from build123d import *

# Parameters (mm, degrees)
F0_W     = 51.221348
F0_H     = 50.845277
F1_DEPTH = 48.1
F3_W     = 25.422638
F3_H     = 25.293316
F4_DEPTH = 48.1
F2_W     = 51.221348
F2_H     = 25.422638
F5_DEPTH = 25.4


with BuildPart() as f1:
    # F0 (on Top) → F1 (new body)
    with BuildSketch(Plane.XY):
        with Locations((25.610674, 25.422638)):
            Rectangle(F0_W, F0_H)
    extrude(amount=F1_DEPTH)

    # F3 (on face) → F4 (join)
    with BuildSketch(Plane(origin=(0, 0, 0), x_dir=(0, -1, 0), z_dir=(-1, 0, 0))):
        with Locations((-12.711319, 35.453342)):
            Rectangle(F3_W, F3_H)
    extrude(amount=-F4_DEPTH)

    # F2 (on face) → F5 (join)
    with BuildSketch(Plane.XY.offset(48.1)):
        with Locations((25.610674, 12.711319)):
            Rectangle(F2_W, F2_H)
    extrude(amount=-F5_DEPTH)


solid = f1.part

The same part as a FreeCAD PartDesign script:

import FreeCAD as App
import Part
import Sketcher
Q = App.Units.Quantity


def add_polygon(sketch, points):
    """Adds a closed chain of lines whose ends are joined by coincident constraints."""
    first, n = sketch.GeometryCount, len(points)
    for a, b in zip(points, points[1:] + points[:1]):
        sketch.addGeometry(Part.LineSegment(App.Vector(*a, 0), App.Vector(*b, 0)), False)
    for i in range(n):
        sketch.addConstraint(Sketcher.Constraint("Coincident", first + i, 2, first + (i + 1) % n, 1))

doc = App.newDocument("Part")
body = doc.addObject("PartDesign::Body", "Body")

sketch1 = body.newObject("Sketcher::SketchObject", "Sketch")
sketch1.AttachmentSupport = (doc.getObject("XY_Plane"), [""])
sketch1.MapMode = "FlatFace"
add_polygon(sketch1, [(0, 50.845276), (0, 0), (51.221348, 0), (51.221348, 50.845276)])
sketch1.addConstraint(Sketcher.Constraint("Vertical", 0))
sketch1.addConstraint(Sketcher.Constraint("Horizontal", 1))
sketch1.addConstraint(Sketcher.Constraint("Vertical", 2))
sketch1.addConstraint(Sketcher.Constraint("Horizontal", 3))
sketch1.addConstraint(Sketcher.Constraint("Coincident", 0, 2, -1, 1))
sketch1.addConstraint(Sketcher.Constraint("DistanceX", 1, 1, 1, 2, Q("51.221348 mm")))
sketch1.addConstraint(Sketcher.Constraint("DistanceY", 0, 2, 0, 1, Q("50.845277 mm")))
pad1 = body.newObject("PartDesign::Pad", "Pad")
pad1.Profile = sketch1
pad1.Length = 48.1

sketch2 = body.newObject("Sketcher::SketchObject", "Sketch001")
sketch2.AttachmentSupport = (doc.getObject("YZ_Plane"), [""])
sketch2.MapMode = "FlatFace"
add_polygon(sketch2, [(25.422638, 48.1), (25.422638, 22.806684), (0, 22.806684), (0, 48.1)])
sketch2.addConstraint(Sketcher.Constraint("Vertical", 0))
sketch2.addConstraint(Sketcher.Constraint("Horizontal", 1))
sketch2.addConstraint(Sketcher.Constraint("Vertical", 2))
sketch2.addConstraint(Sketcher.Constraint("Horizontal", 3))
sketch2.addConstraint(Sketcher.Constraint("PointOnObject", 1, 2, -2))
sketch2.addConstraint(Sketcher.Constraint("DistanceY", -1, 1, 2, 2, Q("48.1 mm")))
sketch2.addConstraint(Sketcher.Constraint("DistanceX", 1, 2, 1, 1, Q("25.422638 mm")))
sketch2.addConstraint(Sketcher.Constraint("DistanceY", 0, 2, 0, 1, Q("25.293316 mm")))
pad2 = body.newObject("PartDesign::Pad", "Pad001")
pad2.Profile = sketch2
pad2.Length = 48.1

sketch3 = body.newObject("Sketcher::SketchObject", "Sketch002")
sketch3.AttachmentSupport = (doc.getObject("XY_Plane"), [""])
sketch3.MapMode = "FlatFace"
sketch3.AttachmentOffset = App.Placement(App.Vector(0, 0, 48.1), App.Rotation())
add_polygon(sketch3, [(0, 25.422638), (0, 0), (51.221348, 0), (51.221348, 25.422638)])
sketch3.addConstraint(Sketcher.Constraint("Vertical", 0))
sketch3.addConstraint(Sketcher.Constraint("Horizontal", 1))
sketch3.addConstraint(Sketcher.Constraint("Vertical", 2))
sketch3.addConstraint(Sketcher.Constraint("Horizontal", 3))
sketch3.addConstraint(Sketcher.Constraint("Coincident", 0, 2, -1, 1))
sketch3.addConstraint(Sketcher.Constraint("DistanceX", 1, 1, 1, 2, Q("51.221348 mm")))
sketch3.addConstraint(Sketcher.Constraint("DistanceY", 0, 2, 0, 1, Q("25.422638 mm")))
pad3 = body.newObject("PartDesign::Pad", "Pad002")
pad3.Profile = sketch3
pad3.Length = 25.4
pad3.Reversed = True

doc.recompute()
